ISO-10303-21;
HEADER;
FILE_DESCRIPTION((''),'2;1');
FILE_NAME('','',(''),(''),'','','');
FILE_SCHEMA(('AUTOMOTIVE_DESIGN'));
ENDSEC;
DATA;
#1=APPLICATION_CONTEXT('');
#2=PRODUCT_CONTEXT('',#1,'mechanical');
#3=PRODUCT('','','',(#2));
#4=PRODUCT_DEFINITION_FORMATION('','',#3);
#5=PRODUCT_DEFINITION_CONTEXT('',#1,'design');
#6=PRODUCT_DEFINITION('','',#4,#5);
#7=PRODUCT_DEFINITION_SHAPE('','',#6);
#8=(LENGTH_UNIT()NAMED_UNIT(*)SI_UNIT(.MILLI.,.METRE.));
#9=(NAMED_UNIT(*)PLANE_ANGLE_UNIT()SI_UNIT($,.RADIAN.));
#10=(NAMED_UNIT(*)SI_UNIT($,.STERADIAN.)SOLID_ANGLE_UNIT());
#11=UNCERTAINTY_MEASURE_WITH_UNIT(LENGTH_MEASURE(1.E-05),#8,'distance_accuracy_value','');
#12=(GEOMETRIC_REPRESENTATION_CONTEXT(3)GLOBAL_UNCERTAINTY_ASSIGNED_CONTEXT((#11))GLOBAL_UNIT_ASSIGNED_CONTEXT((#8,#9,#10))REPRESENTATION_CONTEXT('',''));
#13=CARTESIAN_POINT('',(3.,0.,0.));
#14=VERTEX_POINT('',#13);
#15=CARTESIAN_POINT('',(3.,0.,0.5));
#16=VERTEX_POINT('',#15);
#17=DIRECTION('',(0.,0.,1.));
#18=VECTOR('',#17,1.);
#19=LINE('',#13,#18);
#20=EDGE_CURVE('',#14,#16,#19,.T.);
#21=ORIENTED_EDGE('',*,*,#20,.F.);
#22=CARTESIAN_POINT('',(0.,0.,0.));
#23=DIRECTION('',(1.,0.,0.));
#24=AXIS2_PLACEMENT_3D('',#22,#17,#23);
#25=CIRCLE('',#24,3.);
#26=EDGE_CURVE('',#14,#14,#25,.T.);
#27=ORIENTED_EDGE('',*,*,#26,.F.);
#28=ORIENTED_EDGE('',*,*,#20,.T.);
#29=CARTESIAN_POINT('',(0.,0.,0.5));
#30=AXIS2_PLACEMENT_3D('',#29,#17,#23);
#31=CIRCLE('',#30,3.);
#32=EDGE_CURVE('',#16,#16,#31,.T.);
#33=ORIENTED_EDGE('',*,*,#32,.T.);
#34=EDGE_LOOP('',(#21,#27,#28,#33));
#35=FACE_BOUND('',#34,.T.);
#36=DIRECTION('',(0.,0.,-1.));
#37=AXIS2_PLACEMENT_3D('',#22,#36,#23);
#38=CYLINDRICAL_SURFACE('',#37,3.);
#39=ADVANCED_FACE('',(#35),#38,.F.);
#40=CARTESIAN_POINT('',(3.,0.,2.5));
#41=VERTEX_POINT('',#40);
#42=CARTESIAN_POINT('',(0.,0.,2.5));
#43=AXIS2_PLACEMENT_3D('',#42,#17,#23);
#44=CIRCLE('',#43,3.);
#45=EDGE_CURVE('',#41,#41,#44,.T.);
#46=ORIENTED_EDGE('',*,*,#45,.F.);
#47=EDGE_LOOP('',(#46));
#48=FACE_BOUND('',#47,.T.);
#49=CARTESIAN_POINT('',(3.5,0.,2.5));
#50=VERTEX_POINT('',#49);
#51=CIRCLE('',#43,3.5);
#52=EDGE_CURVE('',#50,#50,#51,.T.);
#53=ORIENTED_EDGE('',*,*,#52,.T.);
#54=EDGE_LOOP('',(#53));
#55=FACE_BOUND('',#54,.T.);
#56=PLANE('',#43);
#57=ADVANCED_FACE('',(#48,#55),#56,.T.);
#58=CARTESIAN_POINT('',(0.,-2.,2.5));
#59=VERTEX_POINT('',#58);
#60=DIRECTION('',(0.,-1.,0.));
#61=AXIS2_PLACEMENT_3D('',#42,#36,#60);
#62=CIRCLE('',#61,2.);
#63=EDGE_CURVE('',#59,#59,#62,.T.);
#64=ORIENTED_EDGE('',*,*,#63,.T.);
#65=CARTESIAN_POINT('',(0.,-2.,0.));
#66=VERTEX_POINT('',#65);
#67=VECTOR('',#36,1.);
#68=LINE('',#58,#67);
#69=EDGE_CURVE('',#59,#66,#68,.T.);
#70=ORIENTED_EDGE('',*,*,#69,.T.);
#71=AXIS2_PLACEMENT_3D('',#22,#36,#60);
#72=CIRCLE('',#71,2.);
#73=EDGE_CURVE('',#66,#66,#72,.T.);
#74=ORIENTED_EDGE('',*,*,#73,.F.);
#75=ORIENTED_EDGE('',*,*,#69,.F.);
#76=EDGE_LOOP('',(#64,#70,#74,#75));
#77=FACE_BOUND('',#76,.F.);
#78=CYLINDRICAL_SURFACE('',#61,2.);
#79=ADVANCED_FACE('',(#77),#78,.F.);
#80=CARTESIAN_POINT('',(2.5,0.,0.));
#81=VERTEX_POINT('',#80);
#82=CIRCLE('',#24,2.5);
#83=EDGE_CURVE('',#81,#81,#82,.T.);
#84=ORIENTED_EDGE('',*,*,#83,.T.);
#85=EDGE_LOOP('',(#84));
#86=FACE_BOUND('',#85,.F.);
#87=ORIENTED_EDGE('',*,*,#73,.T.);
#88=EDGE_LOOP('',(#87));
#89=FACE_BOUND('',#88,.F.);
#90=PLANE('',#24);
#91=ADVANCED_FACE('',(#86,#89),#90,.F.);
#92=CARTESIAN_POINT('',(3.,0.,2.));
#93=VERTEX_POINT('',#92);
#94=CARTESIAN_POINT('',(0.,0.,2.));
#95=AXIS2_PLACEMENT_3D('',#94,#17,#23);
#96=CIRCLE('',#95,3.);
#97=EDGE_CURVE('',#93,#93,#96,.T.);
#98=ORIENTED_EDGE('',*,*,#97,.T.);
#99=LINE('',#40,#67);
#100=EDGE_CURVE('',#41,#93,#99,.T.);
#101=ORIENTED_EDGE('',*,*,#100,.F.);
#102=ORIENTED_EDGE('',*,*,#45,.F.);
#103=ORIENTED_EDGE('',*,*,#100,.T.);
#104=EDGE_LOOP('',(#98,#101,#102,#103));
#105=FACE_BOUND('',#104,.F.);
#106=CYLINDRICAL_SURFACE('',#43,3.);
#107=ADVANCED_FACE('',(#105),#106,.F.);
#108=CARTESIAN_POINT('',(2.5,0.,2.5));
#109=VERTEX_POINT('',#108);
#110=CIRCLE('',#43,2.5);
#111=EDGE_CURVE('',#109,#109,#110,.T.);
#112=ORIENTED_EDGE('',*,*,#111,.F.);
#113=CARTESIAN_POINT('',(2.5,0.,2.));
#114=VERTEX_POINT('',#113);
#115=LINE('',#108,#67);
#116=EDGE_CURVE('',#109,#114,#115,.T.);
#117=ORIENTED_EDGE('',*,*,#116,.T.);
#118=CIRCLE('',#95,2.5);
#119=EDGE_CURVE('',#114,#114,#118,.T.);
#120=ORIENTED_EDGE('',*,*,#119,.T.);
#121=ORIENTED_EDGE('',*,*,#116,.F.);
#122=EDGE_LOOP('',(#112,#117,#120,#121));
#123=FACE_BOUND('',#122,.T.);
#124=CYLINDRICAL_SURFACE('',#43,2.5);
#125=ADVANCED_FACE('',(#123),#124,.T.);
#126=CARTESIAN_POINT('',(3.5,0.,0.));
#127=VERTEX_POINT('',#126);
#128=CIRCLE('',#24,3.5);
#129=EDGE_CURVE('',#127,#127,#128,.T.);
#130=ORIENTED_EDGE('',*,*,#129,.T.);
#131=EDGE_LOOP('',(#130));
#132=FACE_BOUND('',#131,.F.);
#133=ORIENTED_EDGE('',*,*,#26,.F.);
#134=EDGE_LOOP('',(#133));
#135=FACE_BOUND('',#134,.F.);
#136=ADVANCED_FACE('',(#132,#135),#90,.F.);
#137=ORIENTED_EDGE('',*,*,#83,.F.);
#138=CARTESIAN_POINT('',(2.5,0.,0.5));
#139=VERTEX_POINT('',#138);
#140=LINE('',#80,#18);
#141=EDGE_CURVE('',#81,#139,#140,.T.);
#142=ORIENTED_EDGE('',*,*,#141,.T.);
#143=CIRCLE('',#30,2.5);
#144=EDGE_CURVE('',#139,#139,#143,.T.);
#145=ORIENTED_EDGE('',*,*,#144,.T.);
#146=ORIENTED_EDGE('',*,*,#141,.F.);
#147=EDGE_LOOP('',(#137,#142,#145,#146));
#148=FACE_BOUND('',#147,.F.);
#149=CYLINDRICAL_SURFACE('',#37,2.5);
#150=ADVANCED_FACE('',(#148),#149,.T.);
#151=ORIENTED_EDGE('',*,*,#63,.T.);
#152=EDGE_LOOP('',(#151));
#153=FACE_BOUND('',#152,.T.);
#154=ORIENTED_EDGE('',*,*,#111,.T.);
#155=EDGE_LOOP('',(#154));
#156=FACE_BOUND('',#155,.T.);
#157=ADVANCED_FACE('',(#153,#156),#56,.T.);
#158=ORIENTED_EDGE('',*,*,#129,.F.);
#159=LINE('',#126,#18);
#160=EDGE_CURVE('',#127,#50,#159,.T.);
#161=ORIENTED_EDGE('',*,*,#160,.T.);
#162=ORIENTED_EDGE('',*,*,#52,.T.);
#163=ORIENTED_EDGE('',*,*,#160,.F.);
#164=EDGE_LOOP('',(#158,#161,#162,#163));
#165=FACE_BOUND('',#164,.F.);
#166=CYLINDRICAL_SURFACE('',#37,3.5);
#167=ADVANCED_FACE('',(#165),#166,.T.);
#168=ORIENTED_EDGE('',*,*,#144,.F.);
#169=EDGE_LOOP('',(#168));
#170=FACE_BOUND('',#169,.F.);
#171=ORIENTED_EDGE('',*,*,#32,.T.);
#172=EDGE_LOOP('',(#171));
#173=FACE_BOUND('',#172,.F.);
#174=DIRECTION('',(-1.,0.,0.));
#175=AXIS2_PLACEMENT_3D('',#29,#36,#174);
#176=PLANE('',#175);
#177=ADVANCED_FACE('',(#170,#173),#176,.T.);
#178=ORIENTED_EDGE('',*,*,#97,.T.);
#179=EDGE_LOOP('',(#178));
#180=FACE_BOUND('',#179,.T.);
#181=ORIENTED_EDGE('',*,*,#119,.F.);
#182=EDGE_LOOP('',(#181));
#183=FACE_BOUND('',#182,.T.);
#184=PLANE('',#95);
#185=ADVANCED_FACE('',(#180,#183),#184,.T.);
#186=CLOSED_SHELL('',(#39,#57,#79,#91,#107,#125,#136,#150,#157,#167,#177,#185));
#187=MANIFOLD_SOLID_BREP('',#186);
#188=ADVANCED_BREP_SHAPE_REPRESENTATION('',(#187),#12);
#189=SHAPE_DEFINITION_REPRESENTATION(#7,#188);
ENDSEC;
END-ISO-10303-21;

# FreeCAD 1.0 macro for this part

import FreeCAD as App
import Part
import Sketcher
from FreeCAD import Vector
Q = App.Units.Quantity

doc = App.newDocument("Part")
body = doc.addObject("PartDesign::Body", "Body")

sketch1 = body.newObject("Sketcher::SketchObject", "Sketch")
sketch1.AttachmentSupport = (doc.getObject("XY_Plane"), [""])
sketch1.MapMode = "FlatFace"
sketch1.addGeometry(Part.Circle(Vector(0, 0, 0), Vector(0, 0, 1), 3.5), False)
sketch1.addConstraint([
    Sketcher.Constraint("Coincident", 0, 3, -1, 1),
    Sketcher.Constraint("Diameter", 0, Q("7 mm")),
])
pad1 = body.newObject("PartDesign::Pad", "Pad")
pad1.Profile = sketch1
pad1.Length = 2.5

sketch2 = body.newObject("Sketcher::SketchObject", "Sketch001")
sketch2.AttachmentSupport = (doc.getObject("XY_Plane"), [""])
sketch2.MapMode = "FlatFace"
sketch2.AttachmentOffset = App.Placement(Vector(0, 0, 2.5), App.Rotation())
sketch2.addGeometry(Part.Circle(Vector(0, 0, 0), Vector(0, 0, 1), 2), False)
sketch2.addConstraint([
    Sketcher.Constraint("Coincident", 0, 3, -1, 1),
    Sketcher.Constraint("Diameter", 0, Q("4 mm")),
])
doc.recompute()
hole = body.newObject("PartDesign::Hole", "Hole")
hole.Profile = sketch2
hole.ThreadType = "None"
hole.Diameter = 4
hole.DepthType = "ThroughAll"

sketch3 = body.newObject("Sketcher::SketchObject", "Sketch002")
sketch3.AttachmentSupport = (doc.getObject("XY_Plane"), [""])
sketch3.MapMode = "FlatFace"
sketch3.AttachmentOffset = App.Placement(Vector(0, 0, 2.5), App.Rotation())
sketch3.addGeometry([
    Part.Circle(Vector(0, 0, 0), Vector(0, 0, 1), 3),
    Part.Circle(Vector(0, 0, 0), Vector(0, 0, 1), 2.5),
], False)
sketch3.addConstraint([
    Sketcher.Constraint("Coincident", 0, 3, -1, 1),
    Sketcher.Constraint("Coincident", 1, 3, -1, 1),
    Sketcher.Constraint("Diameter", 0, Q("6 mm")),
    Sketcher.Constraint("Diameter", 1, Q("5 mm")),
])
pocket1 = body.newObject("PartDesign::Pocket", "Pocket")
pocket1.Profile = sketch3
pocket1.Length = 0.5
doc.recompute()

datumplane = body.newObject("PartDesign::Plane", "DatumPlane")
datumplane.AttachmentSupport = (doc.getObject("XY_Plane"), [""])
datumplane.MapMode = "FlatFace"
datumplane.AttachmentOffset = App.Placement(Vector(0, 0, 1.25), App.Rotation())
mirrored = body.newObject("PartDesign::Mirrored", "Mirrored")
mirrored.Originals = [pocket1]
mirrored.MirrorPlane = (datumplane, [""])
body.Tip = mirrored

doc.recompute()
